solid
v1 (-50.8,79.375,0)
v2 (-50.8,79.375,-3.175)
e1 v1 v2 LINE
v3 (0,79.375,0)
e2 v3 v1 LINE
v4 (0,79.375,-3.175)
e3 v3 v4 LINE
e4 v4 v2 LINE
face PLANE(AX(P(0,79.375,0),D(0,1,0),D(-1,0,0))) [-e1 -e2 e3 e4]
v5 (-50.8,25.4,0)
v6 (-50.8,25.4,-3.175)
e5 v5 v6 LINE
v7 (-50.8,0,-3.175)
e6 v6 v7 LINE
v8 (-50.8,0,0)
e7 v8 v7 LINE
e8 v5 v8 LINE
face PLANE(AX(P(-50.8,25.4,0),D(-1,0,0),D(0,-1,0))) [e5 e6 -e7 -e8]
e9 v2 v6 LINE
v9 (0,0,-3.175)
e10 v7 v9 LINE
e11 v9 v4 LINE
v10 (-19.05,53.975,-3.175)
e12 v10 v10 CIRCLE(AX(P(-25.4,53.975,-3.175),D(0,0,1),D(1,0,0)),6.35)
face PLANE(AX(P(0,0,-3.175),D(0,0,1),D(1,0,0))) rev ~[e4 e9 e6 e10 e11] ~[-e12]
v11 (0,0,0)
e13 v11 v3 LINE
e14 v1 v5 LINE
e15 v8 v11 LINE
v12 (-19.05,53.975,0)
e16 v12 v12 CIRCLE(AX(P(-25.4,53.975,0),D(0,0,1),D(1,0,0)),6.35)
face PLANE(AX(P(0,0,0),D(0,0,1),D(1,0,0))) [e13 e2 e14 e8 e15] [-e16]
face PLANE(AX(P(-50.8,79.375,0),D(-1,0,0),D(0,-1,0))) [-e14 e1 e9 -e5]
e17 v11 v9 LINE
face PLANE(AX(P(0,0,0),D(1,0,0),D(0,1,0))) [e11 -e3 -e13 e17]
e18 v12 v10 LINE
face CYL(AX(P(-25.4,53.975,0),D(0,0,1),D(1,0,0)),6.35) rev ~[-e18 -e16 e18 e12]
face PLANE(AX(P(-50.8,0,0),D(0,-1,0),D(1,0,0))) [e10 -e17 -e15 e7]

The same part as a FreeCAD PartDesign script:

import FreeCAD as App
import Part
import Sketcher

V = App.Vector
Q = App.Units.Quantity


def add_polygon(sketch, points):
    """Adds a closed chain of lines whose ends are joined by coincident constraints."""
    first, n = sketch.GeometryCount, len(points)
    for a, b in zip(points, points[1:] + points[:1]):
        sketch.addGeometry(Part.LineSegment(App.Vector(*a, 0), App.Vector(*b, 0)), False)
    for i in range(n):
        sketch.addConstraint(Sketcher.Constraint("Coincident", first + i, 2, first + (i + 1) % n, 1))

doc = App.newDocument("Part")
body = doc.addObject("PartDesign::Body", "Body")

# Sketch on XY plane
sketch1 = body.newObject("Sketcher::SketchObject", "Sketch")
sketch1.AttachmentSupport = (doc.getObject("XY_Plane"), [""])
sketch1.MapMode = "FlatFace"
add_polygon(sketch1, [(-51, 0), (0, 0), (0, 79), (-51, 79)])  # lines 0-3
sketch1.addGeometry(Part.Circle(V(-25, 54, 0), V(0, 0, 1), 6), False)  # 4
sketch1.addConstraint([
    Sketcher.Constraint("Horizontal", 0),
    Sketcher.Constraint("Vertical", 1),
    Sketcher.Constraint("Horizontal", 2),
    Sketcher.Constraint("Vertical", 3),
    Sketcher.Constraint("Coincident", 0, 2, -1, 1),
    Sketcher.Constraint("Diameter", 4, Q("0.5 in")),
    Sketcher.Constraint("DistanceX", 0, 1, 0, 2, Q("2 in")),
    Sketcher.Constraint("DistanceX", 4, 3, -1, 1, Q("1 in")),
    Sketcher.Constraint("DistanceY", 4, 3, 1, 2, Q("1 in")),
    Sketcher.Constraint("DistanceY", 1, 1, 1, 2, Q("3.125 in")),
])
pad1 = body.newObject("PartDesign::Pad", "Pad")
pad1.Profile = sketch1
pad1.Length = Q("0.125 in")
pad1.Reversed = True

doc.recompute()
